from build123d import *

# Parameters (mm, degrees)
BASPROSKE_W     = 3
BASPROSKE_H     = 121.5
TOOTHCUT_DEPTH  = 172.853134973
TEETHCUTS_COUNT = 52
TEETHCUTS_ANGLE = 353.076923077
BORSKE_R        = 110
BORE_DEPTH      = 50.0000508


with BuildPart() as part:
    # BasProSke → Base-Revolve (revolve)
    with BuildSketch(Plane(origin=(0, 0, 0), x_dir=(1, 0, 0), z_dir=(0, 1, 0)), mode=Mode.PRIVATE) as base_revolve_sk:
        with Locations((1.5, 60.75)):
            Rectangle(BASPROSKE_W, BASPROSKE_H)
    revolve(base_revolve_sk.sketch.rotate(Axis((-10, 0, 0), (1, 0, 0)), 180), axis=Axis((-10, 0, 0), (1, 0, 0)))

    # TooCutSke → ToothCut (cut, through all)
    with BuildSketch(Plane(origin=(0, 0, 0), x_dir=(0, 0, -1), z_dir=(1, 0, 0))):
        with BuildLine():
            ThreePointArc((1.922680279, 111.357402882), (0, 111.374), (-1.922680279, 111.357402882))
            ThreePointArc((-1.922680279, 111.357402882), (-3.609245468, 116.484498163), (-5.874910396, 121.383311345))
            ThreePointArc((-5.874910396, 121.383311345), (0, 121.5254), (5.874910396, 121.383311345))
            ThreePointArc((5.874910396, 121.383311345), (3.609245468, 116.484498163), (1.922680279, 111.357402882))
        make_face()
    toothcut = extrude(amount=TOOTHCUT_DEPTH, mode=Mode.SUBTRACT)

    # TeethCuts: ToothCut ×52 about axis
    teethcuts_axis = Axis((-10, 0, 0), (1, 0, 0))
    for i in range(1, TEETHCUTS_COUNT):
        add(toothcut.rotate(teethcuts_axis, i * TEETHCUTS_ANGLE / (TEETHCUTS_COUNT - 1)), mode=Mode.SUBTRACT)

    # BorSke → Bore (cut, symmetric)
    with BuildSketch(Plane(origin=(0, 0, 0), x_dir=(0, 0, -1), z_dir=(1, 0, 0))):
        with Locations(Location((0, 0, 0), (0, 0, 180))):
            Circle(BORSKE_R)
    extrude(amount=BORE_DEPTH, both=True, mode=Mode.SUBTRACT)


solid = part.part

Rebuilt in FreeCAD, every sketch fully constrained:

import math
import FreeCAD as App
import Part
import Sketcher
from FreeCAD import Vector
Q = App.Units.Quantity


def add_polygon(sketch, points):
    """Adds a closed chain of lines whose ends are joined by coincident constraints."""
    first, n = sketch.GeometryCount, len(points)
    for a, b in zip(points, points[1:] + points[:1]):
        sketch.addGeometry(Part.LineSegment(App.Vector(*a, 0), App.Vector(*b, 0)), False)
    for i in range(n):
        sketch.addConstraint(Sketcher.Constraint("Coincident", first + i, 2, first + (i + 1) % n, 1))

doc = App.newDocument("Part")
params = doc.addObject("Spreadsheet::Sheet", "Params")
for row, (alias, value) in enumerate([
    ("sketch1_width", "3 mm"),
    ("sketch1_height", "121.5 mm"),
    ("revolution_angle", "360 deg"),
    ("sketch2_radius", "46.8 mm"),
    ("sketch3_diameter", "220 mm"),
    ("pocket2_length", "100.000102 mm"),
], start=1):
    params.set(f"A{row}", alias)
    params.set(f"B{row}", "=" + value)
    params.setAlias(f"B{row}", alias)

body = doc.addObject("PartDesign::Body", "Body")

sketch1 = body.newObject("Sketcher::SketchObject", "Sketch")
sketch1.AttachmentSupport = (doc.getObject("XZ_Plane"), [""])
sketch1.MapMode = "FlatFace"
add_polygon(sketch1, [(0, -121.5), (0, 0), (3, 0), (3, -121.5)])
sketch1.addConstraint([
    Sketcher.Constraint("Vertical", 0),
    Sketcher.Constraint("Horizontal", 1),
    Sketcher.Constraint("Vertical", 2),
    Sketcher.Constraint("Horizontal", 3),
    Sketcher.Constraint("Coincident", 0, 2, -1, 1),
    Sketcher.Constraint("DistanceX", 1, 1, 1, 2, Q("3 mm")),
    Sketcher.Constraint("DistanceY", 0, 1, 0, 2, Q("121.5 mm")),
])
sketch1.setExpression("Constraints[9]", "Params.sketch1_width")
sketch1.setExpression("Constraints[10]", "Params.sketch1_height")
revolution = body.newObject("PartDesign::Revolution", "Revolution")
revolution.Profile = sketch1
revolution.ReferenceAxis = (sketch1, ["H_Axis"])
revolution.setExpression("Angle", "Params.revolution_angle")

sketch2 = body.newObject("Sketcher::SketchObject", "Sketch001")
sketch2.AttachmentSupport = (doc.getObject("YZ_Plane"), [""])
sketch2.MapMode = "FlatFace"
sketch2.addGeometry([
    Part.ArcOfCircle(Part.Circle(Vector(0, 0, 0), Vector(0, 0, 1), 111.4), math.radians(-0.99), math.radians(0.99)),
    Part.ArcOfCircle(Part.Circle(Vector(99.3, -47.1, 0), Vector(0, 0, 1), 46.8), math.radians(61.87), math.radians(75.1)),
    Part.ArcOfCircle(Part.Circle(Vector(0, 0, 0), Vector(0, 0, 1), 121.5), math.radians(-2.77), math.radians(2.77)),
    Part.ArcOfCircle(Part.Circle(Vector(99.3, 47.1, 0), Vector(0, 0, 1), 46.8), math.radians(-75.1), math.radians(-61.87)),
], False)
sketch2.addConstraint([
    Sketcher.Constraint("Coincident", 0, 1, 1, 2),
    Sketcher.Constraint("Coincident", 1, 1, 2, 1),
    Sketcher.Constraint("Coincident", 2, 2, 3, 2),
    Sketcher.Constraint("Coincident", 3, 1, 0, 2),
    Sketcher.Constraint("Coincident", 0, 3, -1, 1),
    Sketcher.Constraint("Coincident", 2, 3, -1, 1),
    Sketcher.Constraint("Equal", 1, 3),
    Sketcher.Constraint("Symmetric", 1, 3, 3, 3, -1),
    Sketcher.Constraint("Radius", 1, Q("46.8 mm")),
    Sketcher.Constraint("Radius", 2, Q("121.5254 mm")),
    Sketcher.Constraint("Radius", 0, Q("111.374002 mm")),
    Sketcher.Constraint("DistanceY", 0, 1, -1, 1, Q("1.92268 mm")),
    Sketcher.Constraint("DistanceY", 1, 1, -1, 1, Q("5.87491 mm")),
])
sketch2.setExpression("Constraints[8]", "Params.sketch2_radius")
pocket1 = body.newObject("PartDesign::Pocket", "Pocket")
pocket1.Profile = sketch2
pocket1.Type = "ThroughAll"
pocket1.Reversed = True
doc.recompute()

polarpattern = body.newObject("PartDesign::PolarPattern", "PolarPattern")
polarpattern.Originals = [pocket1]
polarpattern.Axis = (doc.getObject("X_Axis"), [""])
polarpattern.Angle = 360
polarpattern.Occurrences = 52
body.Tip = polarpattern

sketch3 = body.newObject("Sketcher::SketchObject", "Sketch002")
sketch3.AttachmentSupport = (doc.getObject("YZ_Plane"), [""])
sketch3.MapMode = "FlatFace"
sketch3.addGeometry(Part.Circle(Vector(0, 0, 0), Vector(0, 0, 1), 110), False)
sketch3.addConstraint([
    Sketcher.Constraint("Coincident", 0, 3, -1, 1),
    Sketcher.Constraint("Diameter", 0, Q("220 mm")),
])
sketch3.setExpression("Constraints[1]", "Params.sketch3_diameter")
pocket2 = body.newObject("PartDesign::Pocket", "Pocket001")
pocket2.Profile = sketch3
pocket2.setExpression("Length", "Params.pocket2_length")
pocket2.Midplane = True

doc.recompute()
